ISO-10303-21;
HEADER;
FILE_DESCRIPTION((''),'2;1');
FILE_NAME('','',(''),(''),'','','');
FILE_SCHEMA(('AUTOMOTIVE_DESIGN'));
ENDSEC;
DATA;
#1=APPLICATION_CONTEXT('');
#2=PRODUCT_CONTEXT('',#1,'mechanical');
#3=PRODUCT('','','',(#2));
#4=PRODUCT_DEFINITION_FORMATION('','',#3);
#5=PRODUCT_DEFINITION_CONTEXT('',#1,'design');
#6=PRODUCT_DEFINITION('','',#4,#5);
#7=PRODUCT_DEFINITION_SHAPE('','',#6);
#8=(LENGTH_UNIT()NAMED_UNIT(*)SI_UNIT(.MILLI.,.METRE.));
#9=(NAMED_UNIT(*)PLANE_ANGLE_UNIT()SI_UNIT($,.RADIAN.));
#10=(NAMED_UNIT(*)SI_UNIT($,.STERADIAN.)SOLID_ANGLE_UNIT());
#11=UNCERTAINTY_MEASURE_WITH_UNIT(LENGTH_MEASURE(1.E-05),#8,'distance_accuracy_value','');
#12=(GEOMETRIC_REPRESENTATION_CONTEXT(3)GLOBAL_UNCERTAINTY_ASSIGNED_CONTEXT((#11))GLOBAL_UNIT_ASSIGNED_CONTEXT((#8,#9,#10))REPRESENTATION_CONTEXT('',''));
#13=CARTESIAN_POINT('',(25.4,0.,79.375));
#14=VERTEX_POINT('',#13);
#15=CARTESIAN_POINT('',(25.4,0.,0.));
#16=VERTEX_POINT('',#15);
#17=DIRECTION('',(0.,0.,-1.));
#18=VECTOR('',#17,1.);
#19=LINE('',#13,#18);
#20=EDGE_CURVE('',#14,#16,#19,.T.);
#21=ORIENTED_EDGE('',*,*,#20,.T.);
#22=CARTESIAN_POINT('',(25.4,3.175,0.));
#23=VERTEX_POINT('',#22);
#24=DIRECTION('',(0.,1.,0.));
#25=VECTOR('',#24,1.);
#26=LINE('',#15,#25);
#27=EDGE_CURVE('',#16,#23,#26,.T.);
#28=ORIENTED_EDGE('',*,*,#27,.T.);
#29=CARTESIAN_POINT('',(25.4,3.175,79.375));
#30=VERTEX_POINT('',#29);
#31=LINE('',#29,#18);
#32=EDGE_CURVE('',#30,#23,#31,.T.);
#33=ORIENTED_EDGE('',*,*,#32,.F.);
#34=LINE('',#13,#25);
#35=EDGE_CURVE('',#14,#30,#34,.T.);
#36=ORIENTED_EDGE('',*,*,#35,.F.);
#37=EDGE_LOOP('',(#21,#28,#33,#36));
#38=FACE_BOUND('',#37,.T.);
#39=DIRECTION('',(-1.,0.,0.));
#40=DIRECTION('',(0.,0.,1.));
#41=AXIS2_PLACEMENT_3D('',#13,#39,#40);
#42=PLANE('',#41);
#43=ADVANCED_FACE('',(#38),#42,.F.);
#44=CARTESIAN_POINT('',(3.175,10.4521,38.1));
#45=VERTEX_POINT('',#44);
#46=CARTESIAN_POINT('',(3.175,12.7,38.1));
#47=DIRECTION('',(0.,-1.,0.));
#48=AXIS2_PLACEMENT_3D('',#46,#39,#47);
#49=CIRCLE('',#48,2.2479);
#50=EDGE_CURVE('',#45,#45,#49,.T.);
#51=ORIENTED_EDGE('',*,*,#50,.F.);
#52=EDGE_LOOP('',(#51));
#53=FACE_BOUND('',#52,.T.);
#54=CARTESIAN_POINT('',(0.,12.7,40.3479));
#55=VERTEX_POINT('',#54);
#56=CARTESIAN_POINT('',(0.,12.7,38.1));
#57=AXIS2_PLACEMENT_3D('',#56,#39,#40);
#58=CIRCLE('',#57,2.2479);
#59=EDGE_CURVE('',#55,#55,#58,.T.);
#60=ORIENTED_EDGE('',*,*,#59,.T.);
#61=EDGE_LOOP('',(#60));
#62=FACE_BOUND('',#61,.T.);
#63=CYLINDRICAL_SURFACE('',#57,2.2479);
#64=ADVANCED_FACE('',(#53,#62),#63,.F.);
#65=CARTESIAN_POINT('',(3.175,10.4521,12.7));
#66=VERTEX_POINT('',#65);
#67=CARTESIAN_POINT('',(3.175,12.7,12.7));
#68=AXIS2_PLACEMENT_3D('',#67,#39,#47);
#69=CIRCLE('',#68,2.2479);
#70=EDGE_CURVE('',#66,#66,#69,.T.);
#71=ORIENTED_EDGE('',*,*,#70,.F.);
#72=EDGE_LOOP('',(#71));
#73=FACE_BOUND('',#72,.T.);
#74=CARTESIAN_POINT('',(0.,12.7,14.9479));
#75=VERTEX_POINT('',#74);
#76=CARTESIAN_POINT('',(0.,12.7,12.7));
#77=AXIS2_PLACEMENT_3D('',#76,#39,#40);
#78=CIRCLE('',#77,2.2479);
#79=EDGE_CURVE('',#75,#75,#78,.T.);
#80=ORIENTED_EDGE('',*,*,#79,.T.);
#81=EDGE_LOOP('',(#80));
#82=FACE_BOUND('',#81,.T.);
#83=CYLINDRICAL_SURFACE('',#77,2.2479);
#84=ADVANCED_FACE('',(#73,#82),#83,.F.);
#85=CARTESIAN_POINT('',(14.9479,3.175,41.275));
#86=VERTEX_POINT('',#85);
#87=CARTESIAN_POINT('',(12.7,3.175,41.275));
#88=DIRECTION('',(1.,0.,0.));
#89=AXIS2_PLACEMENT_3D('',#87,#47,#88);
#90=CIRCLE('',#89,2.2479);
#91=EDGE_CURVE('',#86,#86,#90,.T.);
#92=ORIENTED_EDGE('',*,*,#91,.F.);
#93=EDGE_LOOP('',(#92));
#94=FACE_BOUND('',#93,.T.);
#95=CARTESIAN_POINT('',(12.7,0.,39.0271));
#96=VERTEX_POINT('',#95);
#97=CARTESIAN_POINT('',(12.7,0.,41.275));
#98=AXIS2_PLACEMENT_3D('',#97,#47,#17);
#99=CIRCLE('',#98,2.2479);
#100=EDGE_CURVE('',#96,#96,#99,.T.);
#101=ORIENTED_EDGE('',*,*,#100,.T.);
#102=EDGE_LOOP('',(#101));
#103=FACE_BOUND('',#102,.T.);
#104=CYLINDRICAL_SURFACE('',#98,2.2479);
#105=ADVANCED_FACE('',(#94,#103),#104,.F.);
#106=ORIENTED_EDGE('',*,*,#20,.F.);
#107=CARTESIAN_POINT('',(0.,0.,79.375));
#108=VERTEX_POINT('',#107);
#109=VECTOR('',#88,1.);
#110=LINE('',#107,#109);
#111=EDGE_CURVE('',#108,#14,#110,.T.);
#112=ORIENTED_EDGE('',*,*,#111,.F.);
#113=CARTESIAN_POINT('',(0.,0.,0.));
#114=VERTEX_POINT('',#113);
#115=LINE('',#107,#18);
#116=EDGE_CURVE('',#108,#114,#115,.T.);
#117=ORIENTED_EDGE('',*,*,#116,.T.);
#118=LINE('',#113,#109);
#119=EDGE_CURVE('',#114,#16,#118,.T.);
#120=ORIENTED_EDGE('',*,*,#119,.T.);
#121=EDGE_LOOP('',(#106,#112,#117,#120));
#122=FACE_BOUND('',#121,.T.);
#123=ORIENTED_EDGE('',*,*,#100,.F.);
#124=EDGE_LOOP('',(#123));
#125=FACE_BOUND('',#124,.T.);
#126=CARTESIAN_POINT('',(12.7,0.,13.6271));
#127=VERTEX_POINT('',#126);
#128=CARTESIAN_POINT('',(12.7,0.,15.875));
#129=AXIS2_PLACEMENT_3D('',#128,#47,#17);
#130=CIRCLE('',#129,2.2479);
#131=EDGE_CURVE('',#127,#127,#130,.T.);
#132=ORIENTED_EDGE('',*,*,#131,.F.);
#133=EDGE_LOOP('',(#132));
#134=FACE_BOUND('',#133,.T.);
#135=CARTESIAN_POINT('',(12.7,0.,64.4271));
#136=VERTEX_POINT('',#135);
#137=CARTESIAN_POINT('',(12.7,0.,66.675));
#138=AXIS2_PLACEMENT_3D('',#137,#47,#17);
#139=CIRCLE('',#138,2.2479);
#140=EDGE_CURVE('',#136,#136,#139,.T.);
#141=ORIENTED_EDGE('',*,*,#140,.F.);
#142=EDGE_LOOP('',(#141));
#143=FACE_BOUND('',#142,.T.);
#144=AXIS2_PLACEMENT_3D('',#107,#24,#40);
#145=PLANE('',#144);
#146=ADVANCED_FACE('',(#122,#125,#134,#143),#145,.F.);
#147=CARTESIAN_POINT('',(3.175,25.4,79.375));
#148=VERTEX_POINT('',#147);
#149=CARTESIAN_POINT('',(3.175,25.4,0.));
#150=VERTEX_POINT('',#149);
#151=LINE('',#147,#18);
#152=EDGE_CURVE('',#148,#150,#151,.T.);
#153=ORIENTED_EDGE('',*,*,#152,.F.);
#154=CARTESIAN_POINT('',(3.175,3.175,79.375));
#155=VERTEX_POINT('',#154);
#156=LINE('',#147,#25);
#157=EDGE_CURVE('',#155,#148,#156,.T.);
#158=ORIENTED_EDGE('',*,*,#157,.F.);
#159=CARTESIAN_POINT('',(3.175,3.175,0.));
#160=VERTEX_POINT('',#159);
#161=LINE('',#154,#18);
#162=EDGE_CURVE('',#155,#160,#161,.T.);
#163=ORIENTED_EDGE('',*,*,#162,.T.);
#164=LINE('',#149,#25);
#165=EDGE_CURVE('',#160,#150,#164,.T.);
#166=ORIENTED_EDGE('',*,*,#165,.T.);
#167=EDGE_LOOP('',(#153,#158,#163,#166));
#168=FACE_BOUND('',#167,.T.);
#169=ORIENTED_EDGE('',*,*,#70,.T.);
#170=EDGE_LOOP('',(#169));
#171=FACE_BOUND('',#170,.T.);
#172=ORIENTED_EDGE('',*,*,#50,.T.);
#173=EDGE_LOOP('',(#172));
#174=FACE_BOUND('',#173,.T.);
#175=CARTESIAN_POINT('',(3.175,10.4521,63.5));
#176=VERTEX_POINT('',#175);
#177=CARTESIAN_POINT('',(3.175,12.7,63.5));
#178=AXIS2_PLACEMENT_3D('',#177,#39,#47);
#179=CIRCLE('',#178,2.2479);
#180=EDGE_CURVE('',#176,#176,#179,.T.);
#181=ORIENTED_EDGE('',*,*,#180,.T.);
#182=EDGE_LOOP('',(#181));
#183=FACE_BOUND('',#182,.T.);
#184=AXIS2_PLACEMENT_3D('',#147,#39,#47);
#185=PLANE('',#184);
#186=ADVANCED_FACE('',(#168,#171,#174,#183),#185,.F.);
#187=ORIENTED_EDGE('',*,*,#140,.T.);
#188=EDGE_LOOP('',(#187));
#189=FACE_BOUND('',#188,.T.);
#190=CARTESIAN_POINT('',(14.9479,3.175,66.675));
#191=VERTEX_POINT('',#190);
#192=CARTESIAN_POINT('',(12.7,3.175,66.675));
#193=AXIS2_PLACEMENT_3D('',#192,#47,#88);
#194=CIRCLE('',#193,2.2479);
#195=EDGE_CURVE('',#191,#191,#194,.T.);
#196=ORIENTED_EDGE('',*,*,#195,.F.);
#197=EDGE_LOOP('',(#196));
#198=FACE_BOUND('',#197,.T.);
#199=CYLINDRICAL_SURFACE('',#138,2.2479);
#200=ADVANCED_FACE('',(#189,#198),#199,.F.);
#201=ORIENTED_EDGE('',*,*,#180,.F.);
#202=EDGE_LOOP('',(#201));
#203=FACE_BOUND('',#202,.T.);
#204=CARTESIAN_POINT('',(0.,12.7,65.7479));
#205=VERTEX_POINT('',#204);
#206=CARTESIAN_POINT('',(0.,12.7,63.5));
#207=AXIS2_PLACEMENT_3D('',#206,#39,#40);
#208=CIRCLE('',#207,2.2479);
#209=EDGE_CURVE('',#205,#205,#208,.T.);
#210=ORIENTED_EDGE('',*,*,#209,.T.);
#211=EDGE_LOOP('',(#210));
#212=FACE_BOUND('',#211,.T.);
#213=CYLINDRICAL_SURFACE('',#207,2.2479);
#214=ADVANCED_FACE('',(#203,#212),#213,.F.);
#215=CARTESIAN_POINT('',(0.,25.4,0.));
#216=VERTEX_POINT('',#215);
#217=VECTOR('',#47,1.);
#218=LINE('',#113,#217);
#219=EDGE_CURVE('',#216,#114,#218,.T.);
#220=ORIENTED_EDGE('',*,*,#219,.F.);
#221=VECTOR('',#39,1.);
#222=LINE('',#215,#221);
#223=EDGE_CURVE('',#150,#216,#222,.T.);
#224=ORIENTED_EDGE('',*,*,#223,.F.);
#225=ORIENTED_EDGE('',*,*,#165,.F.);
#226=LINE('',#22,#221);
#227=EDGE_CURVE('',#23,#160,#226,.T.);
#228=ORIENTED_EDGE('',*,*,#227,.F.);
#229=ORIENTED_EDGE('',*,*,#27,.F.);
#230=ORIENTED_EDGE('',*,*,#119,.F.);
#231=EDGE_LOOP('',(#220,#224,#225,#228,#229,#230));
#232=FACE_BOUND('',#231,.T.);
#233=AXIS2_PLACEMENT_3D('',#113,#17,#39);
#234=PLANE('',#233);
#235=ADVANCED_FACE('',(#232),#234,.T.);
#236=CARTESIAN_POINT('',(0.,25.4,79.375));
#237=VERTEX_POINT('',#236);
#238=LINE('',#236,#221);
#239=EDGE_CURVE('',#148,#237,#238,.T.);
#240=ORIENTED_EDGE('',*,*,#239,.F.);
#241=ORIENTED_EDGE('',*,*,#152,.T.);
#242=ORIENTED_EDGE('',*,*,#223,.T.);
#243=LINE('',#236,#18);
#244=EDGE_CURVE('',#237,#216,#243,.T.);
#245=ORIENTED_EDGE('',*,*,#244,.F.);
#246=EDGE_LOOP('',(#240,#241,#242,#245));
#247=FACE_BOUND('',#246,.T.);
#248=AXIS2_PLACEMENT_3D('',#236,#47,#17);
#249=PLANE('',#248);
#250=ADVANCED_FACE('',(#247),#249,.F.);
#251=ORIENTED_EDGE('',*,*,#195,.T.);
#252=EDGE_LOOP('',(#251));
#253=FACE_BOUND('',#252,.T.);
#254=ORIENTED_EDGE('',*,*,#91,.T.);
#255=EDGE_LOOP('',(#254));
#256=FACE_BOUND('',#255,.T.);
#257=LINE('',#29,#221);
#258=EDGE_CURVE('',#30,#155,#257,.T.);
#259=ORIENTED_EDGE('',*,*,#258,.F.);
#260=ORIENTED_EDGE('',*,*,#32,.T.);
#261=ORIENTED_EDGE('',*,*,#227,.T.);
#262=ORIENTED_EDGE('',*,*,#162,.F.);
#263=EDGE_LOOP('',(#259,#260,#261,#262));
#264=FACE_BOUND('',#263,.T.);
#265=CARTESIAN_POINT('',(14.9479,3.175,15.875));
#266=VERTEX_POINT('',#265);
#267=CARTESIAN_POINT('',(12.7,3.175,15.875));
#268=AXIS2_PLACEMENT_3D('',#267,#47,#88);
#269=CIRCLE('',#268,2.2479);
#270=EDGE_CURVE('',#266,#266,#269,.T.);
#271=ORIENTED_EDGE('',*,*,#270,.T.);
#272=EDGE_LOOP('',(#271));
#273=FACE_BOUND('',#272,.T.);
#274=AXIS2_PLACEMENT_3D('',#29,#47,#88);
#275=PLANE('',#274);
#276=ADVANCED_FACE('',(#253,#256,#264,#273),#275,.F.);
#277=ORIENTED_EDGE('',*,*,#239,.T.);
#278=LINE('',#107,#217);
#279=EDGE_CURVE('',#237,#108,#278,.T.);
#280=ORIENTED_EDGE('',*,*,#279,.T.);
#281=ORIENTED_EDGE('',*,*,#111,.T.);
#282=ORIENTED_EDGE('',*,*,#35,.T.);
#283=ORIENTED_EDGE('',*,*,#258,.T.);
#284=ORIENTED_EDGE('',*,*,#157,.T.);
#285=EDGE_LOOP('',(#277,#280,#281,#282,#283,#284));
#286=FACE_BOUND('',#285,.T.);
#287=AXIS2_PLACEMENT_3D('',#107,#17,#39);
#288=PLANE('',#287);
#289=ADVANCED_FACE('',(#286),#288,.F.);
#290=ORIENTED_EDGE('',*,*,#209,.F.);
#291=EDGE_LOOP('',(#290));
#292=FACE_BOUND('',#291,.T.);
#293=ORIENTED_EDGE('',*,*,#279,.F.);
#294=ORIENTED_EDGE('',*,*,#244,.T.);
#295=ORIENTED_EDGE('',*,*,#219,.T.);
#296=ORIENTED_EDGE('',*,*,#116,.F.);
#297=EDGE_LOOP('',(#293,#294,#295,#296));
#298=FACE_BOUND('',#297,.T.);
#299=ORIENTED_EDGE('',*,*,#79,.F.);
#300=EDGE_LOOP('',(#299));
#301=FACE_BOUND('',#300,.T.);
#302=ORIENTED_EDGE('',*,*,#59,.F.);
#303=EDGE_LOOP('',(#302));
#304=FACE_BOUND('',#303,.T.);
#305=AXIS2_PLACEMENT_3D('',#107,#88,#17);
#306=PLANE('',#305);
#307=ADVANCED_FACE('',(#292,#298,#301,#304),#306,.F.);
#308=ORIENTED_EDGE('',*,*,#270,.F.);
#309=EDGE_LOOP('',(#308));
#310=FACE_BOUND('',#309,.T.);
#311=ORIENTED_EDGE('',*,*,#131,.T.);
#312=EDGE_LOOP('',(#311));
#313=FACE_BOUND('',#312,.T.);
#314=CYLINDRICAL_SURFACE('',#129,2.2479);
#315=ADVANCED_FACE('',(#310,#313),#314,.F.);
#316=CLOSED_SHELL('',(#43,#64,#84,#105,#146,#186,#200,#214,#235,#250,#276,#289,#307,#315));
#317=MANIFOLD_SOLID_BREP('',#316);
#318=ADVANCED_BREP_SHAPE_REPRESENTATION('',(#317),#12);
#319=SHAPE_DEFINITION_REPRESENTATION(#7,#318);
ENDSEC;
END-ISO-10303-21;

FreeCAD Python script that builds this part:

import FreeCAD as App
import Part
import Sketcher

V = App.Vector
Q = App.Units.Quantity


def add_polygon(sketch, points):
    """Adds a closed chain of lines whose ends are joined by coincident constraints."""
    first, n = sketch.GeometryCount, len(points)
    for a, b in zip(points, points[1:] + points[:1]):
        sketch.addGeometry(Part.LineSegment(App.Vector(*a, 0), App.Vector(*b, 0)), False)
    for i in range(n):
        sketch.addConstraint(Sketcher.Constraint("Coincident", first + i, 2, first + (i + 1) % n, 1))

doc = App.newDocument("Part")
body = doc.addObject("PartDesign::Body", "Body")

# Sketch on XY plane
sketch1 = body.newObject("Sketcher::SketchObject", "Sketch")
sketch1.AttachmentSupport = (doc.getObject("XY_Plane"), [""])
sketch1.MapMode = "FlatFace"
add_polygon(sketch1, [(0, 0), (25.4, 0), (25.4, 3.2), (3.2, 3.2), (3.2, 25.4), (0, 25.4)])  # lines 0-5
sketch1.addConstraint([
    Sketcher.Constraint("Horizontal", 0),
    Sketcher.Constraint("Vertical", 1),
    Sketcher.Constraint("Horizontal", 2),
    Sketcher.Constraint("Vertical", 3),
    Sketcher.Constraint("Horizontal", 4),
    Sketcher.Constraint("Vertical", 5),
    Sketcher.Constraint("Coincident", 5, 2, -1, 1),
    Sketcher.Constraint("Equal", 4, 1),
    Sketcher.Constraint("Equal", 2, 3),
    Sketcher.Constraint("DistanceX", 0, 1, 0, 2, Q("1 in")),
    Sketcher.Constraint("DistanceX", 2, 2, 2, 1, Q("0.875 in")),
])
pad1 = body.newObject("PartDesign::Pad", "Pad")
pad1.Profile = sketch1
pad1.Length = Q("3.125 in")

# Sketch on XZ plane
sketch2 = body.newObject("Sketcher::SketchObject", "Sketch001")
sketch2.AttachmentSupport = (doc.getObject("XZ_Plane"), [""])
sketch2.MapMode = "FlatFace"
sketch2.addGeometry([
    Part.Circle(V(12.7, 66.7, 0), V(0, 0, 1), 2.2),
    Part.Circle(V(12.7, 41.3, 0), V(0, 0, 1), 2.2),
    Part.Circle(V(12.7, 15.9, 0), V(0, 0, 1), 2.2),
], False)
sketch2.addConstraint([
    Sketcher.Constraint("Equal", 0, 1),
    Sketcher.Constraint("Equal", 1, 2),
    Sketcher.Constraint("Vertical", 0, 3, 1, 3),
    Sketcher.Constraint("Vertical", 1, 3, 2, 3),
    Sketcher.Constraint("Diameter", 0, Q("0.177 in")),
    Sketcher.Constraint("DistanceY", 1, 3, 0, 3, Q("1 in")),
    Sketcher.Constraint("DistanceY", 2, 3, 1, 3, Q("1 in")),
    Sketcher.Constraint("DistanceX", -1, 1, 0, 3, Q("0.5 in")),
    Sketcher.Constraint("DistanceY", -1, 1, 0, 3, Q("2.625 in")),
])
doc.recompute()
hole = body.newObject("PartDesign::Hole", "Hole")
hole.Profile = sketch2
hole.ThreadType = "None"
hole.Diameter = Q("0.177 in")
hole.DepthType = "ThroughAll"

# Sketch on YZ plane
sketch3 = body.newObject("Sketcher::SketchObject", "Sketch002")
sketch3.AttachmentSupport = (doc.getObject("YZ_Plane"), [""])
sketch3.MapMode = "FlatFace"
sketch3.addGeometry([
    Part.Circle(V(12.7, 63.5, 0), V(0, 0, 1), 2.2),
    Part.Circle(V(12.7, 38.1, 0), V(0, 0, 1), 2.2),
    Part.Circle(V(12.7, 12.7, 0), V(0, 0, 1), 2.2),
], False)
sketch3.addConstraint([
    Sketcher.Constraint("Equal", 0, 1),
    Sketcher.Constraint("Equal", 1, 2),
    Sketcher.Constraint("Vertical", 0, 3, 1, 3),
    Sketcher.Constraint("Vertical", 1, 3, 2, 3),
    Sketcher.Constraint("Diameter", 0, Q("0.177 in")),
    Sketcher.Constraint("DistanceY", 1, 3, 0, 3, Q("1 in")),
    Sketcher.Constraint("DistanceY", 2, 3, 1, 3, Q("1 in")),
    Sketcher.Constraint("DistanceX", -1, 1, 0, 3, Q("0.5 in")),
    Sketcher.Constraint("DistanceY", -1, 1, 0, 3, Q("2.5 in")),
])
doc.recompute()
hole2 = body.newObject("PartDesign::Hole", "Hole001")
hole2.Profile = sketch3
hole2.ThreadType = "None"
hole2.Diameter = Q("0.177 in")
hole2.DepthType = "ThroughAll"
hole2.Reversed = True

doc.recompute()
